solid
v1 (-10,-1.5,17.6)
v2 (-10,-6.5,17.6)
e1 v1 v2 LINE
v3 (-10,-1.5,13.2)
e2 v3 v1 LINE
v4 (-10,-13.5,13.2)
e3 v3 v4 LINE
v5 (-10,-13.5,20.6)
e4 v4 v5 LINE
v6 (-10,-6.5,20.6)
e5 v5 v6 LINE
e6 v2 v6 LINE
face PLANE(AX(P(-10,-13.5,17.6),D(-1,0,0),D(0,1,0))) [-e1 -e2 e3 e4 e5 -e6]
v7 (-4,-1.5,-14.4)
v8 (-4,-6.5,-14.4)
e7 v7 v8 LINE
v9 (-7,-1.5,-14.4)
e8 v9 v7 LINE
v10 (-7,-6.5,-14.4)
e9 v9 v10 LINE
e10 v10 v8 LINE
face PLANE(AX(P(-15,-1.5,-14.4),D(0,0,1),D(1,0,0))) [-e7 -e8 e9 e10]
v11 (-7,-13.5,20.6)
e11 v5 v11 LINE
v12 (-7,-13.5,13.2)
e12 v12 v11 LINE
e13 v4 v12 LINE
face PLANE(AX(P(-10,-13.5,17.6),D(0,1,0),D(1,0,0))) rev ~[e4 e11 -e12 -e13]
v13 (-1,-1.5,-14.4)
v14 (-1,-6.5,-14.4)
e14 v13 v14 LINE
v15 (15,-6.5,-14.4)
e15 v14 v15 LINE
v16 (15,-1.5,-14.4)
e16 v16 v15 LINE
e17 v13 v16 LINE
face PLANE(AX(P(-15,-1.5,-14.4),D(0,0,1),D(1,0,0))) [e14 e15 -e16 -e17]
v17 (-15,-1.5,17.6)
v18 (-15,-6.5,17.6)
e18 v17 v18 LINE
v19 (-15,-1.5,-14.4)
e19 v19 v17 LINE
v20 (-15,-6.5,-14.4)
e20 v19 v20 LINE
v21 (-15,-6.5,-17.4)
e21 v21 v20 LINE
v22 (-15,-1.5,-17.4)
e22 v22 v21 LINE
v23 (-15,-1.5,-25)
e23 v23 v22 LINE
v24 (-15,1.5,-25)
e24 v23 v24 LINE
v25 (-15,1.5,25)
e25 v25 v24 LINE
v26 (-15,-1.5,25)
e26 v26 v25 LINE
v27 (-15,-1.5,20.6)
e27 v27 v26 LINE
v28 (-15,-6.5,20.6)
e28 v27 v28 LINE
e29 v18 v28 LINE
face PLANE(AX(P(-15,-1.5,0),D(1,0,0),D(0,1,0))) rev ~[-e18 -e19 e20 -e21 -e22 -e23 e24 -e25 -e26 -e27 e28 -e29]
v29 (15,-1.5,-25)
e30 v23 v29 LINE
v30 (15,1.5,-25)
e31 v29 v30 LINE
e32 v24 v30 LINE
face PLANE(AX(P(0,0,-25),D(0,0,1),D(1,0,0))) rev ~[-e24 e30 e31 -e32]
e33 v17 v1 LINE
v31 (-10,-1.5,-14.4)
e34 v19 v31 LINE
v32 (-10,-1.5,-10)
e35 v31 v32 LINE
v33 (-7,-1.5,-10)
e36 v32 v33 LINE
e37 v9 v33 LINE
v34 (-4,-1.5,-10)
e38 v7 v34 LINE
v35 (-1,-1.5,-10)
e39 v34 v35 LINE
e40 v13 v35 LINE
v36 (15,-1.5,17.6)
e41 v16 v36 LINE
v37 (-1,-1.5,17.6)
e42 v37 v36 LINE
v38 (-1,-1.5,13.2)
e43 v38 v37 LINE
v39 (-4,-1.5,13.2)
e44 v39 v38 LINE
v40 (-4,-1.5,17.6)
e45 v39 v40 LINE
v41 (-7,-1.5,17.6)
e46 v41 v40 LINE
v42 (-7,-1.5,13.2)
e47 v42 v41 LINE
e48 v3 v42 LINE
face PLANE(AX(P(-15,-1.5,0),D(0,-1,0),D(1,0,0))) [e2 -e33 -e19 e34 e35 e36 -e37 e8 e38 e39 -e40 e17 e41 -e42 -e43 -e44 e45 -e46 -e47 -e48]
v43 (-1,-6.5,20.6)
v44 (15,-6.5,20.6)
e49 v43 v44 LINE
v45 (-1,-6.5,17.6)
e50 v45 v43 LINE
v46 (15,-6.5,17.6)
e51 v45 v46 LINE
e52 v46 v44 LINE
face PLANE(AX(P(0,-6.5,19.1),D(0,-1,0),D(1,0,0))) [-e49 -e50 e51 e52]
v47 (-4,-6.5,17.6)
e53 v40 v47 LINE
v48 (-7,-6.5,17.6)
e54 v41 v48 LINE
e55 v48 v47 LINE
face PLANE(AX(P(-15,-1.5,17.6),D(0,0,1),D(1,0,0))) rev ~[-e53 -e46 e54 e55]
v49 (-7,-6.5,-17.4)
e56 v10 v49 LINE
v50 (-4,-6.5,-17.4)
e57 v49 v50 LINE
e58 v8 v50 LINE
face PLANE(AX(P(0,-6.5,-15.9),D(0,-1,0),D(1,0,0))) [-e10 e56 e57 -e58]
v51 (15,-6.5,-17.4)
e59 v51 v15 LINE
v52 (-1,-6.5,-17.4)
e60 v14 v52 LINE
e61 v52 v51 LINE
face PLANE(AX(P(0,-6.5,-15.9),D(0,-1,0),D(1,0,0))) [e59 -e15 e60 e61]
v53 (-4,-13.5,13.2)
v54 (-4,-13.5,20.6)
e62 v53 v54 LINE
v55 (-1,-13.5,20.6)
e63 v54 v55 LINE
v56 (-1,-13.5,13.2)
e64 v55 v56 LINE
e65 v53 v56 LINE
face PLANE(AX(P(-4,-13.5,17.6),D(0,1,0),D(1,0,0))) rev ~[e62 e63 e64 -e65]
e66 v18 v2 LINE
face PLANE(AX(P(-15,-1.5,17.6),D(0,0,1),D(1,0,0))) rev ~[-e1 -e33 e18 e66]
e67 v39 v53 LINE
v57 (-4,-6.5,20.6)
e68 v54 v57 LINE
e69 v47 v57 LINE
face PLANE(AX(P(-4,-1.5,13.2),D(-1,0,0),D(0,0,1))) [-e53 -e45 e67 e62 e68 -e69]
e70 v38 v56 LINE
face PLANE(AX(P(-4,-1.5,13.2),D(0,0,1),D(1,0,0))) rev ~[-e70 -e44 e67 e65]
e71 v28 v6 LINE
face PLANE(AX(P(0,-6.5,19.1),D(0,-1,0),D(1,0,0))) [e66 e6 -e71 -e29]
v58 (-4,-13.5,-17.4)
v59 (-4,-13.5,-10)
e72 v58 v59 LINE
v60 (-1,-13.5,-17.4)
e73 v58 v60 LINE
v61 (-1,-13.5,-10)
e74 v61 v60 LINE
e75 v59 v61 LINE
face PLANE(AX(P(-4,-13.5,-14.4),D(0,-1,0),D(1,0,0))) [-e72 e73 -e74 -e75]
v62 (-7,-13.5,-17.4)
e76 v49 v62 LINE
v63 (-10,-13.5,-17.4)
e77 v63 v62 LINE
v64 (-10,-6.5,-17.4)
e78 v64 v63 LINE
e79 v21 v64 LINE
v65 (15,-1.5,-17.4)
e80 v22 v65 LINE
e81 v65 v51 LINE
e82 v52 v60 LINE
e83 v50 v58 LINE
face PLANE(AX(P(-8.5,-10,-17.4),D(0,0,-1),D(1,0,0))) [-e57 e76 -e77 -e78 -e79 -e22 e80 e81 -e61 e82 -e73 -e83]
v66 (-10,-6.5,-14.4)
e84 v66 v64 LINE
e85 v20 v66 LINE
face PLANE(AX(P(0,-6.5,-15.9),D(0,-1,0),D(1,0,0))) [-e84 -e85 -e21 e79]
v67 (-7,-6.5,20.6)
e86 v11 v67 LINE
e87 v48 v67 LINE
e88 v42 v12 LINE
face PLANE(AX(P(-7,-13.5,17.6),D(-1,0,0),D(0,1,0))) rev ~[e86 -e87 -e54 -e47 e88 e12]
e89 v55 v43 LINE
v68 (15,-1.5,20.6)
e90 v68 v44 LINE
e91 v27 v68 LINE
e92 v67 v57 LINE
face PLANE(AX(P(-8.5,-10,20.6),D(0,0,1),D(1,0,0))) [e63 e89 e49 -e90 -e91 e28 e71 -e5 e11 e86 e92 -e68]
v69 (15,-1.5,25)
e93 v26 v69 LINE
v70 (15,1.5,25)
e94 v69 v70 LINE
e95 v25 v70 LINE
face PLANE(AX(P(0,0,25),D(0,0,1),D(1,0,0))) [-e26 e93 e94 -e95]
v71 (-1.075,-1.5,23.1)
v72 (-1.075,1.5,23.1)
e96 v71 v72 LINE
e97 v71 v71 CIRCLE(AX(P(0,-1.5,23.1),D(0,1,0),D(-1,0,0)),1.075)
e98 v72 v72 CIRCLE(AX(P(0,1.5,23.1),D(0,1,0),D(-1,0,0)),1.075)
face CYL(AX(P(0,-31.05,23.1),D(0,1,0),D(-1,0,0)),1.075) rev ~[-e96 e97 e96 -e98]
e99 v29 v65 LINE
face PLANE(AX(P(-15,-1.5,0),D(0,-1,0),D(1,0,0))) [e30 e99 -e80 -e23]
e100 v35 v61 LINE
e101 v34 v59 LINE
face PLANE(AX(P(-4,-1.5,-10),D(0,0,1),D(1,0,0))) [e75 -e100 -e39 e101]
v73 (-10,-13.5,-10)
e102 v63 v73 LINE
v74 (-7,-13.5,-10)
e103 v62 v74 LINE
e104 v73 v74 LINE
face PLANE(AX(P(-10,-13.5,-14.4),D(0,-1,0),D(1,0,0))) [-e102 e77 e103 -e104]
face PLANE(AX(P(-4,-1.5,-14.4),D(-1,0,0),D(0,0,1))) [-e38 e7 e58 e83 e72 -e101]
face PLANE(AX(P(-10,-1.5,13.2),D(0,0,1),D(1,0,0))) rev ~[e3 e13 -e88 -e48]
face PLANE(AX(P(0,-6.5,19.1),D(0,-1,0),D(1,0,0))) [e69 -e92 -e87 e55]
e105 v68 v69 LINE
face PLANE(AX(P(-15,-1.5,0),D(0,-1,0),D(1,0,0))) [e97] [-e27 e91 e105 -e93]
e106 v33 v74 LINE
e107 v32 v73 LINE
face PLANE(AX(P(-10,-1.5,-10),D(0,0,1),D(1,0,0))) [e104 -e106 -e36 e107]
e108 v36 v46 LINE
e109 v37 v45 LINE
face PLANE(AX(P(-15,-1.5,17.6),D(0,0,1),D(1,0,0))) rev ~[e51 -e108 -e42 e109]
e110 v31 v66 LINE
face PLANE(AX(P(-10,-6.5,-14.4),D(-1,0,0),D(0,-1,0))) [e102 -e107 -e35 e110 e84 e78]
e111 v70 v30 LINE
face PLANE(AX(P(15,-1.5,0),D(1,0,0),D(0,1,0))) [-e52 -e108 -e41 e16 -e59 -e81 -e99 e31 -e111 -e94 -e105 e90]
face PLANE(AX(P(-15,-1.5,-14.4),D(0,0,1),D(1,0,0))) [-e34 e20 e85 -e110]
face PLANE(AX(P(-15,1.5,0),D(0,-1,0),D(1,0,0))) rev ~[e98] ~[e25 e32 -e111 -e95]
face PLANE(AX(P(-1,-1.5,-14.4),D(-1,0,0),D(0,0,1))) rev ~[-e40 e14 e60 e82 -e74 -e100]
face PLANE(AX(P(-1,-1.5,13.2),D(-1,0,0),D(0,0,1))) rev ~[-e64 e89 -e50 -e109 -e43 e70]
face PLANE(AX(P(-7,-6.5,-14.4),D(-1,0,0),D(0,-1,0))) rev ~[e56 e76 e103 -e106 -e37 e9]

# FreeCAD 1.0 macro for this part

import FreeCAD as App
import Part
import Sketcher


def add_polygon(sketch, points):
    """Adds a closed chain of lines whose ends are joined by coincident constraints."""
    first, n = sketch.GeometryCount, len(points)
    for a, b in zip(points, points[1:] + points[:1]):
        sketch.addGeometry(Part.LineSegment(App.Vector(*a, 0), App.Vector(*b, 0)), False)
    for i in range(n):
        sketch.addConstraint(Sketcher.Constraint("Coincident", first + i, 2, first + (i + 1) % n, 1))

doc = App.newDocument("Part")
params = doc.addObject("Spreadsheet::Sheet", "Params")
for row, (alias, value) in enumerate([
    ("sketch1_width", "30 mm"),
    ("sketch1_height", "3 mm"),
    ("pad1_length", "50 mm"),
    ("sketch2_width", "30 mm"),
    ("sketch2_height", "3 mm"),
    ("pad2_length", "5 mm"),
    ("sketch3_diameter", "2.15 mm"),
    ("hole_diameter", "2.15 mm"),
    ("hole_depth", "29.55 mm"),
    ("sketch4_width", "3 mm"),
    ("sketch4_height", "4.4 mm"),
    ("pad3_length", "12 mm"),
    ("sketch5_width", "3 mm"),
    ("sketch5_height", "7 mm"),
    ("pad4_length", "3 mm"),
    ("sketch6_width", "3 mm"),
    ("sketch6_height", "7 mm"),
    ("pad5_length", "3 mm"),
], start=1):
    params.set(f"A{row}", alias)
    params.set(f"B{row}", "=" + value)
    params.setAlias(f"B{row}", alias)

body = doc.addObject("PartDesign::Body", "Body")

sketch1 = doc.addObject("Sketcher::SketchObject", "Sketch")
body.addObject(sketch1)
sketch1.AttachmentSupport = (doc.XY_Plane, [""])
sketch1.MapMode = "FlatFace"
add_polygon(sketch1, [(-15, 1.5), (-15, -1.5), (15, -1.5), (15, 1.5)])
sketch1.addConstraint([
    Sketcher.Constraint("Vertical", 0),
    Sketcher.Constraint("Horizontal", 1),
    Sketcher.Constraint("Vertical", 2),
    Sketcher.Constraint("Horizontal", 3),
    Sketcher.Constraint("Symmetric", 0, 2, 2, 2, -1, 1),
    Sketcher.Constraint("DistanceX", 1, 1, 1, 2, 30.0),
    Sketcher.Constraint("DistanceY", 0, 2, 0, 1, 3.0),
])
sketch1.setExpression("Constraints[9]", "Params.sketch1_width")
sketch1.setExpression("Constraints[10]", "Params.sketch1_height")
pad1 = doc.addObject("PartDesign::Pad", "Pad")
body.addObject(pad1)
pad1.Profile = sketch1
pad1.setExpression("Length", "Params.pad1_length")
pad1.Midplane = True

sketch2 = doc.addObject("Sketcher::SketchObject", "Sketch001")
body.addObject(sketch2)
sketch2.AttachmentSupport = (doc.XZ_Plane, [""])
sketch2.MapMode = "FlatFace"
sketch2.AttachmentOffset = App.Placement(App.Vector(0, 0, 1.5), App.Rotation())
add_polygon(sketch2, [(-15, 20.6), (-15, 17.6), (15, 17.6), (15, 20.6)])
add_polygon(sketch2, [(-15, -14.4), (-15, -17.4), (15, -17.4), (15, -14.4)])
sketch2.addConstraint([
    Sketcher.Constraint("Vertical", 0),
    Sketcher.Constraint("Horizontal", 1),
    Sketcher.Constraint("Vertical", 2),
    Sketcher.Constraint("Horizontal", 3),
    Sketcher.Constraint("Vertical", 4),
    Sketcher.Constraint("Horizontal", 5),
    Sketcher.Constraint("Vertical", 6),
    Sketcher.Constraint("Horizontal", 7),
    Sketcher.Constraint("Vertical", 3, 2, 4, 2),
    Sketcher.Constraint("Vertical", 2, 2, 5, 2),
    Sketcher.Constraint("Equal", 2, 4),
    Sketcher.Constraint("DistanceX", 1, 1, 1, 2, 30.0),
    Sketcher.Constraint("DistanceY", 0, 2, 0, 1, 3.0),
    Sketcher.Constraint("DistanceX", 0, 2, -1, 1, 15.0),
    Sketcher.Constraint("DistanceY", 4, 2, 0, 2, 35.0),
    Sketcher.Constraint("DistanceY", -1, 1, 0, 2, 17.6),
])
sketch2.setExpression("Constraints[19]", "Params.sketch2_width")
sketch2.setExpression("Constraints[20]", "Params.sketch2_height")
pad2 = doc.addObject("PartDesign::Pad", "Pad001")
body.addObject(pad2)
pad2.Profile = sketch2
pad2.setExpression("Length", "Params.pad2_length")

sketch3 = doc.addObject("Sketcher::SketchObject", "Sketch002")
body.addObject(sketch3)
sketch3.AttachmentSupport = (doc.XZ_Plane, [""])
sketch3.MapMode = "FlatFace"
sketch3.AttachmentOffset = App.Placement(App.Vector(0, 0, 1.5), App.Rotation())
sketch3.addGeometry(Part.Circle(App.Vector(0, 23.1, 0), App.Vector(0, 0, 1), 1.1), False)
sketch3.addConstraint([
    Sketcher.Constraint("PointOnObject", 0, 3, -2),
    Sketcher.Constraint("Diameter", 0, 2.15),
    Sketcher.Constraint("DistanceY", -1, 1, 0, 3, 23.1),
])
sketch3.setExpression("Constraints[1]", "Params.sketch3_diameter")
doc.recompute()
hole = doc.addObject("PartDesign::Hole", "Hole")
body.addObject(hole)
hole.Profile = sketch3
hole.ThreadType = "None"
hole.setExpression("Diameter", "Params.hole_diameter")
hole.DepthType = "Dimension"
hole.setExpression("Depth", "Params.hole_depth")
hole.DrillPoint = "Angled"
hole.DrillPointAngle = 118

sketch4 = doc.addObject("Sketcher::SketchObject", "Sketch003")
body.addObject(sketch4)
sketch4.AttachmentSupport = (doc.XZ_Plane, [""])
sketch4.MapMode = "FlatFace"
sketch4.AttachmentOffset = App.Placement(App.Vector(0, 0, 1.5), App.Rotation())
add_polygon(sketch4, [(-10, 17.6), (-10, 13.2), (-7, 13.2), (-7, 17.6)])
add_polygon(sketch4, [(-4, 17.6), (-4, 13.2), (-1, 13.2), (-1, 17.6)])
add_polygon(sketch4, [(-10, -10), (-10, -14.4), (-7, -14.4), (-7, -10)])
add_polygon(sketch4, [(-4, -10), (-4, -14.4), (-1, -14.4), (-1, -10)])
sketch4.addConstraint([
    Sketcher.Constraint("Vertical", 0),
    Sketcher.Constraint("Horizontal", 1),
    Sketcher.Constraint("Vertical", 2),
    Sketcher.Constraint("Horizontal", 3),
    Sketcher.Constraint("Vertical", 4),
    Sketcher.Constraint("Horizontal", 5),
    Sketcher.Constraint("Vertical", 6),
    Sketcher.Constraint("Horizontal", 7),
    Sketcher.Constraint("Vertical", 8),
    Sketcher.Constraint("Horizontal", 9),
    Sketcher.Constraint("Vertical", 10),
    Sketcher.Constraint("Horizontal", 11),
    Sketcher.Constraint("Vertical", 12),
    Sketcher.Constraint("Horizontal", 13),
    Sketcher.Constraint("Vertical", 14),
    Sketcher.Constraint("Horizontal", 15),
    Sketcher.Constraint("Horizontal", 1, 2, 4, 2),
    Sketcher.Constraint("Horizontal", 3, 2, 6, 2),
    Sketcher.Constraint("Horizontal", 9, 2, 12, 2),
    Sketcher.Constraint("Horizontal", 11, 2, 14, 2),
    Sketcher.Constraint("Vertical", 3, 2, 8, 2),
    Sketcher.Constraint("Vertical", 2, 2, 9, 2),
    Sketcher.Constraint("Vertical", 7, 2, 12, 2),
    Sketcher.Constraint("Vertical", 6, 2, 13, 2),
    Sketcher.Constraint("Equal", 3, 5),
    Sketcher.Constraint("Equal", 6, 8),
    Sketcher.Constraint("DistanceX", 1, 1, 1, 2, 3.0),
    Sketcher.Constraint("DistanceY", 0, 2, 0, 1, 4.4),
    Sketcher.Constraint("DistanceX", 0, 2, -1, 1, 10.0),
    Sketcher.Constraint("DistanceX", 4, 2, -1, 1, 4.0),
    Sketcher.Constraint("DistanceY", 10, 2, -1, 1, 10.0),
    Sketcher.Constraint("DistanceY", 8, 2, 3, 2, 32.0),
])
sketch4.setExpression("Constraints[42]", "Params.sketch4_width")
sketch4.setExpression("Constraints[43]", "Params.sketch4_height")
pad3 = doc.addObject("PartDesign::Pad", "Pad002")
body.addObject(pad3)
pad3.Profile = sketch4
pad3.setExpression("Length", "Params.pad3_length")

sketch5 = doc.addObject("Sketcher::SketchObject", "Sketch004")
body.addObject(sketch5)
sketch5.AttachmentSupport = (doc.XY_Plane, [""])
sketch5.MapMode = "FlatFace"
sketch5.AttachmentOffset = App.Placement(App.Vector(0, 0, 17.6), App.Rotation())
add_polygon(sketch5, [(-10, -6.5), (-10, -13.5), (-7, -13.5), (-7, -6.5)])
add_polygon(sketch5, [(-4, -6.5), (-4, -13.5), (-1, -13.5), (-1, -6.5)])
sketch5.addConstraint([
    Sketcher.Constraint("Vertical", 0),
    Sketcher.Constraint("Horizontal", 1),
    Sketcher.Constraint("Vertical", 2),
    Sketcher.Constraint("Horizontal", 3),
    Sketcher.Constraint("Vertical", 4),
    Sketcher.Constraint("Horizontal", 5),
    Sketcher.Constraint("Vertical", 6),
    Sketcher.Constraint("Horizontal", 7),
    Sketcher.Constraint("Horizontal", 1, 2, 4, 2),
    Sketcher.Constraint("Horizontal", 3, 2, 6, 2),
    Sketcher.Constraint("Equal", 3, 5),
    Sketcher.Constraint("DistanceX", 1, 1, 1, 2, 3.0),
    Sketcher.Constraint("DistanceY", 0, 2, 0, 1, 7.0),
    Sketcher.Constraint("DistanceX", 0, 2, -1, 1, 10.0),
    Sketcher.Constraint("DistanceX", 4, 2, -1, 1, 4.0),
    Sketcher.Constraint("DistanceY", 0, 2, -1, 1, 13.5),
])
sketch5.setExpression("Constraints[19]", "Params.sketch5_width")
sketch5.setExpression("Constraints[20]", "Params.sketch5_height")
pad4 = doc.addObject("PartDesign::Pad", "Pad003")
body.addObject(pad4)
pad4.Profile = sketch5
pad4.setExpression("Length", "Params.pad4_length")

sketch6 = doc.addObject("Sketcher::SketchObject", "Sketch005")
body.addObject(sketch6)
sketch6.AttachmentSupport = (doc.XY_Plane, [""])
sketch6.MapMode = "FlatFace"
sketch6.AttachmentOffset = App.Placement(App.Vector(0, 0, -14.4), App.Rotation())
add_polygon(sketch6, [(-10, -13.5), (-10, -6.5), (-7, -6.5), (-7, -13.5)])
add_polygon(sketch6, [(-4, -13.5), (-4, -6.5), (-1, -6.5), (-1, -13.5)])
sketch6.addConstraint([
    Sketcher.Constraint("Vertical", 0),
    Sketcher.Constraint("Horizontal", 1),
    Sketcher.Constraint("Vertical", 2),
    Sketcher.Constraint("Horizontal", 3),
    Sketcher.Constraint("Vertical", 4),
    Sketcher.Constraint("Horizontal", 5),
    Sketcher.Constraint("Vertical", 6),
    Sketcher.Constraint("Horizontal", 7),
    Sketcher.Constraint("Horizontal", 1, 2, 4, 2),
    Sketcher.Constraint("Horizontal", 3, 2, 6, 2),
    Sketcher.Constraint("Equal", 3, 5),
    Sketcher.Constraint("DistanceX", 1, 1, 1, 2, 3.0),
    Sketcher.Constraint("DistanceY", 0, 1, 0, 2, 7.0),
    Sketcher.Constraint("DistanceX", 0, 2, -1, 1, 10.0),
    Sketcher.Constraint("DistanceX", 4, 2, -1, 1, 4.0),
    Sketcher.Constraint("DistanceY", 0, 2, -1, 1, 6.5),
])
sketch6.setExpression("Constraints[19]", "Params.sketch6_width")
sketch6.setExpression("Constraints[20]", "Params.sketch6_height")
pad5 = doc.addObject("PartDesign::Pad", "Pad004")
body.addObject(pad5)
pad5.Profile = sketch6
pad5.setExpression("Length", "Params.pad5_length")
pad5.Reversed = True

doc.recompute()
